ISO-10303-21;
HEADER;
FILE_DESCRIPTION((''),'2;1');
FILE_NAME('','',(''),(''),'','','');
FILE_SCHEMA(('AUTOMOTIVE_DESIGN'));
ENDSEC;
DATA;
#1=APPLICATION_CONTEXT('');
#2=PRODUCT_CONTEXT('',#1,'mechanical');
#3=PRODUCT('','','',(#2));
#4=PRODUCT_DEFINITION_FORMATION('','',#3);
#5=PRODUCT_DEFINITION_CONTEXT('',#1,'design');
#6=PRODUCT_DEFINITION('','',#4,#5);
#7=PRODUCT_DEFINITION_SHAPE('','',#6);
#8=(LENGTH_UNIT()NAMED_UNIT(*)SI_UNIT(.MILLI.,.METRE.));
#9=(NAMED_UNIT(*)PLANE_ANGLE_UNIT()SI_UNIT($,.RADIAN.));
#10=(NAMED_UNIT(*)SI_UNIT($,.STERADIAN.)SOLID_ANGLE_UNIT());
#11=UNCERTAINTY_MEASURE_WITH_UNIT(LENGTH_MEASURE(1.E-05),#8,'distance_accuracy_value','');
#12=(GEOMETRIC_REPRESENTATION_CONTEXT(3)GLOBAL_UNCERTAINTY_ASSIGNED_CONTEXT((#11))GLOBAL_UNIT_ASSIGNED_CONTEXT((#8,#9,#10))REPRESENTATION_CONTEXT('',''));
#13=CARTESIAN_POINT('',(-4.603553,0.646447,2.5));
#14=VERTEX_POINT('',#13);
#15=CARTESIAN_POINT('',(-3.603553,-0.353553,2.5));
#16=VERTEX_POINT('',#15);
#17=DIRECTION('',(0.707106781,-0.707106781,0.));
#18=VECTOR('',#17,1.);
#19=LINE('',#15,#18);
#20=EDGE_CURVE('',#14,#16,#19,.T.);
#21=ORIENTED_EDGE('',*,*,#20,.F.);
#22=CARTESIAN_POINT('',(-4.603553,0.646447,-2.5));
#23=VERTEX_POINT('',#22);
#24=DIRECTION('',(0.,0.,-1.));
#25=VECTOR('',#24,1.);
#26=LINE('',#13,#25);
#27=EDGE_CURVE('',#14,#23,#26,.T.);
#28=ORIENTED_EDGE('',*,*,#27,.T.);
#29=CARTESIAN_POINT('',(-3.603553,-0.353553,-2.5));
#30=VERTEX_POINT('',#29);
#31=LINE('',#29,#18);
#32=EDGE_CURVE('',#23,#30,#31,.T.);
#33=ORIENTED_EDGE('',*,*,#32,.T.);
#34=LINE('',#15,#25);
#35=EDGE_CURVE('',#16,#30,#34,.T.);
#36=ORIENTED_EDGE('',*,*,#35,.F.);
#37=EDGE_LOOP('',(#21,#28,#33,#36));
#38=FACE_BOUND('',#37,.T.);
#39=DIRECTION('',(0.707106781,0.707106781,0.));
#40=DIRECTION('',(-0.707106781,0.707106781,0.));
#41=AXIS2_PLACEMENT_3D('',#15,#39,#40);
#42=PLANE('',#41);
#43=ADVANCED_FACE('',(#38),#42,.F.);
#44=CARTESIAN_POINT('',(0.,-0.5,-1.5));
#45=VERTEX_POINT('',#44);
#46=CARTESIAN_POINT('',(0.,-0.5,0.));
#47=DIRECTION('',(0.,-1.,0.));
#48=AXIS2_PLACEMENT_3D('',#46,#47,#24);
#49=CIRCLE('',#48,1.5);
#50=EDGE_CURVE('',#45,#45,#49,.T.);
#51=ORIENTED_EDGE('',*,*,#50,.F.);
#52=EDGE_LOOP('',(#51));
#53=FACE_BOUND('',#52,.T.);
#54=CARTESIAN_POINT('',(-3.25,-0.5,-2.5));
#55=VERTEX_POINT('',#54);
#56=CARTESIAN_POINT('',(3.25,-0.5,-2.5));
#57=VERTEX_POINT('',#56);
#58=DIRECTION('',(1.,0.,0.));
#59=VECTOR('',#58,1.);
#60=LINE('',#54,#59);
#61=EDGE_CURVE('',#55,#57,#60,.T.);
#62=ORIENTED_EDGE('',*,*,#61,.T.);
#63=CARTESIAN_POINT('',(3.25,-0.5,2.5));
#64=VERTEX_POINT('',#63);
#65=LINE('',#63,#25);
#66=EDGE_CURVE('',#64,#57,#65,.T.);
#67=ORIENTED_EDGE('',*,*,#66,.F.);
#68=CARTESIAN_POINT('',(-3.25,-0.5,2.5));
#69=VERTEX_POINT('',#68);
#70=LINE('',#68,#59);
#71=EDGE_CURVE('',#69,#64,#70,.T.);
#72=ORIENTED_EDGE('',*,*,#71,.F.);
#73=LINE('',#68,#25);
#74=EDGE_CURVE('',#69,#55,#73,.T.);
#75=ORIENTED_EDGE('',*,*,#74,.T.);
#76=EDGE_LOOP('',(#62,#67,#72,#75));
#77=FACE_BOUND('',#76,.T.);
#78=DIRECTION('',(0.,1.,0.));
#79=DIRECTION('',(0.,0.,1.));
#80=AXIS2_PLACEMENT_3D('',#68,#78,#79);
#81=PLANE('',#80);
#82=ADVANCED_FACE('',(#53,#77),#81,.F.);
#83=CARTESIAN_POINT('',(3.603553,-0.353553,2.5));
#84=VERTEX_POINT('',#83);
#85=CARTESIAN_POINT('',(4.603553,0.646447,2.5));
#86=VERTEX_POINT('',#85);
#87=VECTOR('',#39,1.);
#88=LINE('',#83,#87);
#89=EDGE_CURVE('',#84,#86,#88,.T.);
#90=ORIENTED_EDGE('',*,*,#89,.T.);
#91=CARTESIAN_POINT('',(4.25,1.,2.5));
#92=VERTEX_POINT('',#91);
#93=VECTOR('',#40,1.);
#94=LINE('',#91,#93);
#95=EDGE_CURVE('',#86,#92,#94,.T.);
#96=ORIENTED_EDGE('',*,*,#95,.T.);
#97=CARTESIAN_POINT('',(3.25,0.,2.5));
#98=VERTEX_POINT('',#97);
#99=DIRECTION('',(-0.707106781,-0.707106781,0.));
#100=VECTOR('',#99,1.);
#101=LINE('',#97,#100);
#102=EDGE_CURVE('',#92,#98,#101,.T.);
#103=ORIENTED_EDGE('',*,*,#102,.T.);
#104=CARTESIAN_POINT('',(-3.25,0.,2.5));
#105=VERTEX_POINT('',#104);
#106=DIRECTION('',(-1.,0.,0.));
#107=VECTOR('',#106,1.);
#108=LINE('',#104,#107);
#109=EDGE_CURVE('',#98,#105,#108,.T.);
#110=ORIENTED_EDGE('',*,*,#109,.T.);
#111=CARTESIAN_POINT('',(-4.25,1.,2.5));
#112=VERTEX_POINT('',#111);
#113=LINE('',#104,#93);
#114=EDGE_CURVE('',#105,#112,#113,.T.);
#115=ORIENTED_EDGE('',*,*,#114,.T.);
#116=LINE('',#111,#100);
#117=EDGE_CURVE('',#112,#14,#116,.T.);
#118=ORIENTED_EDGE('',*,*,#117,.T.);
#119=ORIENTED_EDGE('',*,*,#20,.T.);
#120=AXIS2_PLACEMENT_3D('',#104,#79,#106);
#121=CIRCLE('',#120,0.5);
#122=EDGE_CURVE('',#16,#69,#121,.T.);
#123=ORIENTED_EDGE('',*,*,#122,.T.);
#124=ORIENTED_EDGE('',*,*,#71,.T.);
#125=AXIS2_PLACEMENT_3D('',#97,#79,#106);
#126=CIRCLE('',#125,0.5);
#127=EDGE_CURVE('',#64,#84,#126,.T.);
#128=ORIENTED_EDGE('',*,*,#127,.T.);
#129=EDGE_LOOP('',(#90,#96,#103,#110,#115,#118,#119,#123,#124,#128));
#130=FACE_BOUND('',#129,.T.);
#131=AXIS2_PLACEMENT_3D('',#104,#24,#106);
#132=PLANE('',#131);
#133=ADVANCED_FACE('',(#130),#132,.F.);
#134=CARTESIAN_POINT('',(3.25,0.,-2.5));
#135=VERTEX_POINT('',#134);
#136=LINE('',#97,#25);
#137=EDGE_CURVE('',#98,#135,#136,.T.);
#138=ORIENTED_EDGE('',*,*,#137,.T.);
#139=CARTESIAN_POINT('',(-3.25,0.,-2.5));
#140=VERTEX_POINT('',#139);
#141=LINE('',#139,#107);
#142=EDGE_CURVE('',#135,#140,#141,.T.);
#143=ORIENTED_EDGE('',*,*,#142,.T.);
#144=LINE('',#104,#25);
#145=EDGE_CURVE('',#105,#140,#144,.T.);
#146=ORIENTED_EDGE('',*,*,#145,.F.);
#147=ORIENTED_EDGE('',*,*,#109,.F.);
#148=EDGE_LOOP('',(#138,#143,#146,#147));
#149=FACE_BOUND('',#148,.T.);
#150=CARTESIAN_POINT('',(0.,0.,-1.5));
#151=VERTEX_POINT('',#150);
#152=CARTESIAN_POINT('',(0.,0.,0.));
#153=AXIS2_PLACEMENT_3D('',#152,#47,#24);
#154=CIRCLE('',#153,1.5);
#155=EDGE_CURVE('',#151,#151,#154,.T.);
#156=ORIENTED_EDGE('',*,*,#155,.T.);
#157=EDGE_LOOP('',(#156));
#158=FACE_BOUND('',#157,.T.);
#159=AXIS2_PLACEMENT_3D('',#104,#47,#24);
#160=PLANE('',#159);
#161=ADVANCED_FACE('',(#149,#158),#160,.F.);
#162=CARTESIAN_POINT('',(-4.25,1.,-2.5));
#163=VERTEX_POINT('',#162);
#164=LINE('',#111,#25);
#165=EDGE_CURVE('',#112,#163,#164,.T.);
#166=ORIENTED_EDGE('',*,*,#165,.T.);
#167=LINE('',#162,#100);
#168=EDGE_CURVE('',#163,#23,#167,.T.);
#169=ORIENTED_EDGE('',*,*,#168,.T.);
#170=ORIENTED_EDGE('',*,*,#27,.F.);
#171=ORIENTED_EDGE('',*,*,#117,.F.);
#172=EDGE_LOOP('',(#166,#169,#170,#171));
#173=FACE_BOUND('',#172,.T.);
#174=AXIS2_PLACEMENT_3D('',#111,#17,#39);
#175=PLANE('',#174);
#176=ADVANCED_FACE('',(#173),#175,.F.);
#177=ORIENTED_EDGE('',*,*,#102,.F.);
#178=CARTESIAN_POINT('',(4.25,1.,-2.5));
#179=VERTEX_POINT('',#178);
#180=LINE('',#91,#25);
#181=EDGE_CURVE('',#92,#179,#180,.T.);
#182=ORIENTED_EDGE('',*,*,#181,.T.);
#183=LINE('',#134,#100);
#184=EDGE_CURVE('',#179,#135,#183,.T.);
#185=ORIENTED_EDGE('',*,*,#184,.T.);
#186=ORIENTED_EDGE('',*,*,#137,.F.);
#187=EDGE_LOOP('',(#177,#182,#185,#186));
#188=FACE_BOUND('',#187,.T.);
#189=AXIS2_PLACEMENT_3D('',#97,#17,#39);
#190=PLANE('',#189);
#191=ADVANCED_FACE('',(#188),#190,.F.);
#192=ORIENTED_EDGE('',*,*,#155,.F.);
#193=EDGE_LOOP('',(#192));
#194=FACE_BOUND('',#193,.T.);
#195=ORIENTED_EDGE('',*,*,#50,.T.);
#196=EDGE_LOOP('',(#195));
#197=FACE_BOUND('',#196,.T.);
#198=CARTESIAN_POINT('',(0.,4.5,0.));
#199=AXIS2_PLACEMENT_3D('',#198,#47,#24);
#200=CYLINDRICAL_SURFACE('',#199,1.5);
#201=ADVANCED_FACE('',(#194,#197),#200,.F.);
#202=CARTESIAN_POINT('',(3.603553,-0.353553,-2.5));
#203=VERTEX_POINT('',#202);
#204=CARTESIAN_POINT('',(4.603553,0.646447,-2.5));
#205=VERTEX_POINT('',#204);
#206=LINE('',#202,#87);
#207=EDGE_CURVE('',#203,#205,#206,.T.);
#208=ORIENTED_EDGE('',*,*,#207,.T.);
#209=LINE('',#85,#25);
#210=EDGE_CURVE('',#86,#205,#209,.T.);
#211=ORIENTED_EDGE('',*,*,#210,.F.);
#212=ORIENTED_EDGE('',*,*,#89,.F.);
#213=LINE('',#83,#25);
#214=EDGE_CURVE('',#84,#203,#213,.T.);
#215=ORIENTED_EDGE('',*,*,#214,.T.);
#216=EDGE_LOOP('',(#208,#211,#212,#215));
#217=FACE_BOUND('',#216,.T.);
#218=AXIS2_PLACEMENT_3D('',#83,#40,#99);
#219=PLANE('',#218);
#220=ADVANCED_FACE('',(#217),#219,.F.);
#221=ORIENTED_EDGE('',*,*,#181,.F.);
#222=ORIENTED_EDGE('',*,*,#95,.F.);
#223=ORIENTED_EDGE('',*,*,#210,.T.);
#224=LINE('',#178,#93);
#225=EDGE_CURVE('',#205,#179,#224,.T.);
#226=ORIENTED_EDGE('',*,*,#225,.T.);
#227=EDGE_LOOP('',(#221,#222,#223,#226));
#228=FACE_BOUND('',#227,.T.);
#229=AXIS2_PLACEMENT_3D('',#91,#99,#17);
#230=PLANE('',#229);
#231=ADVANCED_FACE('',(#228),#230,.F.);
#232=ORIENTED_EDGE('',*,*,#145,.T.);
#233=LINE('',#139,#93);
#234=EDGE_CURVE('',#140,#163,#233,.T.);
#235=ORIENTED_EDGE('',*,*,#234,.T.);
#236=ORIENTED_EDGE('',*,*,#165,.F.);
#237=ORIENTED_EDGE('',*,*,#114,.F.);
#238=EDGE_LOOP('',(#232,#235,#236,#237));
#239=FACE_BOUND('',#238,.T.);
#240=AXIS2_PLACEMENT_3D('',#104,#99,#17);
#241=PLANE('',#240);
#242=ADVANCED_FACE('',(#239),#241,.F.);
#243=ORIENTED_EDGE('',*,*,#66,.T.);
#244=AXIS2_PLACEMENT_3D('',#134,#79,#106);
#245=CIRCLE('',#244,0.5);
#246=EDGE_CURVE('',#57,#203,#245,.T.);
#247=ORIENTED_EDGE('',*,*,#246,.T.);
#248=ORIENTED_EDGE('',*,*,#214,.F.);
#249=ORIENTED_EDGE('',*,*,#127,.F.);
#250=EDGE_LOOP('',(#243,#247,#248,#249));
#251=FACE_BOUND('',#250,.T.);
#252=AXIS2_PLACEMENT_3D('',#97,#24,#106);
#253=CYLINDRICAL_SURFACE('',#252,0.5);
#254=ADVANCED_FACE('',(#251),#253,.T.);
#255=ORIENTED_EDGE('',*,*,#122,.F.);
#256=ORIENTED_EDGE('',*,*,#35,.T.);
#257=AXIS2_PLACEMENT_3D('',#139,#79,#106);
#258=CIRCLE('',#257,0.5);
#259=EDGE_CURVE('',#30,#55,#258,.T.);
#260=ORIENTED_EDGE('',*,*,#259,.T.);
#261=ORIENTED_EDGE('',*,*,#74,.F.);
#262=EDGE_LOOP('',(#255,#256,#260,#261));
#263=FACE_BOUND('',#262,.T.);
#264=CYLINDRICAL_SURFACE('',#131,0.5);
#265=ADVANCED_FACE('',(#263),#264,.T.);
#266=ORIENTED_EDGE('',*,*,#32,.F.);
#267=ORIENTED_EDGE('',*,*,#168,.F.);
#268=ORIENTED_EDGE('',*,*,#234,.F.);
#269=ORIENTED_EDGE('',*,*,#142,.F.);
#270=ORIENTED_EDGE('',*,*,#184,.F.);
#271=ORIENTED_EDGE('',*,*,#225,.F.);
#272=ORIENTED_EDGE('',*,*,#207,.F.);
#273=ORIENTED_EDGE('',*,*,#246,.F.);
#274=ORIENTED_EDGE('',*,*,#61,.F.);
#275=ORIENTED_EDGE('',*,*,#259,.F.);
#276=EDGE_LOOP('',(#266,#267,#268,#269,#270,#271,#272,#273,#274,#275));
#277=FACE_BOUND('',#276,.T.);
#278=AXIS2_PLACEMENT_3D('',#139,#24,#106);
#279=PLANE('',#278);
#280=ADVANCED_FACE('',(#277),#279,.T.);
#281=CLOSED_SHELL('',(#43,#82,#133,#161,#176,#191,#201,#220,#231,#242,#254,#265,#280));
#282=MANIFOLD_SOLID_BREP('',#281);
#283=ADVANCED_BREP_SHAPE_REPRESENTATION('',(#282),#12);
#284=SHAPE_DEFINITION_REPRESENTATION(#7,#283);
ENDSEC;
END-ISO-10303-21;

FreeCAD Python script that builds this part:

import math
import FreeCAD as App
import Part
import Sketcher

V = App.Vector

doc = App.newDocument("Part")
body = doc.addObject("PartDesign::Body", "Body")

# Sketch on XY plane
sketch1 = body.newObject("Sketcher::SketchObject", "Sketch")
sketch1.AttachmentSupport = (doc.getObject("XY_Plane"), [""])
sketch1.MapMode = "FlatFace"
sketch1.addGeometry([
    Part.LineSegment(V(3.25, 0, 0), V(-3.25, 0, 0)),  # 0
    Part.LineSegment(V(-3.25, 0, 0), V(-4.25, 1, 0)),  # 1
    Part.LineSegment(V(-4.25, 1, 0), V(-4.6, 0.65, 0)),  # 2
    Part.LineSegment(V(-4.6, 0.65, 0), V(-3.6, -0.35, 0)),  # 3
    Part.ArcOfCircle(Part.Circle(V(-3.25, 0, 0), V(0, 0, 1), 0.5), math.radians(-135), math.radians(-90)),  # 4
    Part.LineSegment(V(-3.25, -0.5, 0), V(3.25, -0.5, 0)),  # 5
    Part.ArcOfCircle(Part.Circle(V(3.25, 0, 0), V(0, 0, 1), 0.5), math.radians(-90), math.radians(-45)),  # 6
    Part.LineSegment(V(3.6, -0.35, 0), V(4.6, 0.65, 0)),  # 7
    Part.LineSegment(V(4.6, 0.65, 0), V(4.25, 1, 0)),  # 8
    Part.LineSegment(V(4.25, 1, 0), V(3.25, 0, 0)),  # 9
], False)
sketch1.addConstraint([
    Sketcher.Constraint("Coincident", 0, 2, 1, 1),
    Sketcher.Constraint("Coincident", 1, 2, 2, 1),
    Sketcher.Constraint("Coincident", 2, 2, 3, 1),
    Sketcher.Constraint("Tangent", 3, 2, 4, 1),
    Sketcher.Constraint("Tangent", 4, 2, 5, 1),
    Sketcher.Constraint("Tangent", 5, 2, 6, 1),
    Sketcher.Constraint("Tangent", 6, 2, 7, 1),
    Sketcher.Constraint("Coincident", 7, 2, 8, 1),
    Sketcher.Constraint("Coincident", 8, 2, 9, 1),
    Sketcher.Constraint("Coincident", 9, 2, 0, 1),
    Sketcher.Constraint("Horizontal", 0),
    Sketcher.Constraint("Horizontal", 5),
    Sketcher.Constraint("Coincident", 0, 2, 4, 3),
    Sketcher.Constraint("Coincident", 9, 2, 6, 3),
    Sketcher.Constraint("Symmetric", 4, 3, 6, 3, -1, 1),
    Sketcher.Constraint("Symmetric", 2, 2, 7, 2, -2),
    Sketcher.Constraint("Symmetric", 1, 2, 8, 2, -2),
    Sketcher.Constraint("Perpendicular", 1, 2),
    Sketcher.Constraint("Perpendicular", 2, 3),
    Sketcher.Constraint("Perpendicular", 3, 7),
    Sketcher.Constraint("Radius", 4, 0.5),
    Sketcher.Constraint("DistanceX", 0, 2, 0, 1, 6.5),
    Sketcher.Constraint("DistanceY", -1, 1, 1, 2, 1.0),
])
pad1 = body.newObject("PartDesign::Pad", "Pad")
pad1.Profile = sketch1
pad1.Length = 5
pad1.Midplane = True

# Sketch on XZ plane
sketch2 = body.newObject("Sketcher::SketchObject", "Sketch001")
sketch2.AttachmentSupport = (doc.getObject("XZ_Plane"), [""])
sketch2.MapMode = "FlatFace"
sketch2.AttachmentOffset = App.Placement(V(0, 0, 0.5), App.Rotation())
sketch2.addGeometry(Part.Circle(V(0, 0, 0), V(0, 0, 1), 1.5), False)
sketch2.addConstraint([
    Sketcher.Constraint("Coincident", 0, 3, -1, 1),
    Sketcher.Constraint("Diameter", 0, 3.0),
])
pocket1 = body.newObject("PartDesign::Pocket", "Pocket")
pocket1.Profile = sketch2
pocket1.Length = 5

doc.recompute()
